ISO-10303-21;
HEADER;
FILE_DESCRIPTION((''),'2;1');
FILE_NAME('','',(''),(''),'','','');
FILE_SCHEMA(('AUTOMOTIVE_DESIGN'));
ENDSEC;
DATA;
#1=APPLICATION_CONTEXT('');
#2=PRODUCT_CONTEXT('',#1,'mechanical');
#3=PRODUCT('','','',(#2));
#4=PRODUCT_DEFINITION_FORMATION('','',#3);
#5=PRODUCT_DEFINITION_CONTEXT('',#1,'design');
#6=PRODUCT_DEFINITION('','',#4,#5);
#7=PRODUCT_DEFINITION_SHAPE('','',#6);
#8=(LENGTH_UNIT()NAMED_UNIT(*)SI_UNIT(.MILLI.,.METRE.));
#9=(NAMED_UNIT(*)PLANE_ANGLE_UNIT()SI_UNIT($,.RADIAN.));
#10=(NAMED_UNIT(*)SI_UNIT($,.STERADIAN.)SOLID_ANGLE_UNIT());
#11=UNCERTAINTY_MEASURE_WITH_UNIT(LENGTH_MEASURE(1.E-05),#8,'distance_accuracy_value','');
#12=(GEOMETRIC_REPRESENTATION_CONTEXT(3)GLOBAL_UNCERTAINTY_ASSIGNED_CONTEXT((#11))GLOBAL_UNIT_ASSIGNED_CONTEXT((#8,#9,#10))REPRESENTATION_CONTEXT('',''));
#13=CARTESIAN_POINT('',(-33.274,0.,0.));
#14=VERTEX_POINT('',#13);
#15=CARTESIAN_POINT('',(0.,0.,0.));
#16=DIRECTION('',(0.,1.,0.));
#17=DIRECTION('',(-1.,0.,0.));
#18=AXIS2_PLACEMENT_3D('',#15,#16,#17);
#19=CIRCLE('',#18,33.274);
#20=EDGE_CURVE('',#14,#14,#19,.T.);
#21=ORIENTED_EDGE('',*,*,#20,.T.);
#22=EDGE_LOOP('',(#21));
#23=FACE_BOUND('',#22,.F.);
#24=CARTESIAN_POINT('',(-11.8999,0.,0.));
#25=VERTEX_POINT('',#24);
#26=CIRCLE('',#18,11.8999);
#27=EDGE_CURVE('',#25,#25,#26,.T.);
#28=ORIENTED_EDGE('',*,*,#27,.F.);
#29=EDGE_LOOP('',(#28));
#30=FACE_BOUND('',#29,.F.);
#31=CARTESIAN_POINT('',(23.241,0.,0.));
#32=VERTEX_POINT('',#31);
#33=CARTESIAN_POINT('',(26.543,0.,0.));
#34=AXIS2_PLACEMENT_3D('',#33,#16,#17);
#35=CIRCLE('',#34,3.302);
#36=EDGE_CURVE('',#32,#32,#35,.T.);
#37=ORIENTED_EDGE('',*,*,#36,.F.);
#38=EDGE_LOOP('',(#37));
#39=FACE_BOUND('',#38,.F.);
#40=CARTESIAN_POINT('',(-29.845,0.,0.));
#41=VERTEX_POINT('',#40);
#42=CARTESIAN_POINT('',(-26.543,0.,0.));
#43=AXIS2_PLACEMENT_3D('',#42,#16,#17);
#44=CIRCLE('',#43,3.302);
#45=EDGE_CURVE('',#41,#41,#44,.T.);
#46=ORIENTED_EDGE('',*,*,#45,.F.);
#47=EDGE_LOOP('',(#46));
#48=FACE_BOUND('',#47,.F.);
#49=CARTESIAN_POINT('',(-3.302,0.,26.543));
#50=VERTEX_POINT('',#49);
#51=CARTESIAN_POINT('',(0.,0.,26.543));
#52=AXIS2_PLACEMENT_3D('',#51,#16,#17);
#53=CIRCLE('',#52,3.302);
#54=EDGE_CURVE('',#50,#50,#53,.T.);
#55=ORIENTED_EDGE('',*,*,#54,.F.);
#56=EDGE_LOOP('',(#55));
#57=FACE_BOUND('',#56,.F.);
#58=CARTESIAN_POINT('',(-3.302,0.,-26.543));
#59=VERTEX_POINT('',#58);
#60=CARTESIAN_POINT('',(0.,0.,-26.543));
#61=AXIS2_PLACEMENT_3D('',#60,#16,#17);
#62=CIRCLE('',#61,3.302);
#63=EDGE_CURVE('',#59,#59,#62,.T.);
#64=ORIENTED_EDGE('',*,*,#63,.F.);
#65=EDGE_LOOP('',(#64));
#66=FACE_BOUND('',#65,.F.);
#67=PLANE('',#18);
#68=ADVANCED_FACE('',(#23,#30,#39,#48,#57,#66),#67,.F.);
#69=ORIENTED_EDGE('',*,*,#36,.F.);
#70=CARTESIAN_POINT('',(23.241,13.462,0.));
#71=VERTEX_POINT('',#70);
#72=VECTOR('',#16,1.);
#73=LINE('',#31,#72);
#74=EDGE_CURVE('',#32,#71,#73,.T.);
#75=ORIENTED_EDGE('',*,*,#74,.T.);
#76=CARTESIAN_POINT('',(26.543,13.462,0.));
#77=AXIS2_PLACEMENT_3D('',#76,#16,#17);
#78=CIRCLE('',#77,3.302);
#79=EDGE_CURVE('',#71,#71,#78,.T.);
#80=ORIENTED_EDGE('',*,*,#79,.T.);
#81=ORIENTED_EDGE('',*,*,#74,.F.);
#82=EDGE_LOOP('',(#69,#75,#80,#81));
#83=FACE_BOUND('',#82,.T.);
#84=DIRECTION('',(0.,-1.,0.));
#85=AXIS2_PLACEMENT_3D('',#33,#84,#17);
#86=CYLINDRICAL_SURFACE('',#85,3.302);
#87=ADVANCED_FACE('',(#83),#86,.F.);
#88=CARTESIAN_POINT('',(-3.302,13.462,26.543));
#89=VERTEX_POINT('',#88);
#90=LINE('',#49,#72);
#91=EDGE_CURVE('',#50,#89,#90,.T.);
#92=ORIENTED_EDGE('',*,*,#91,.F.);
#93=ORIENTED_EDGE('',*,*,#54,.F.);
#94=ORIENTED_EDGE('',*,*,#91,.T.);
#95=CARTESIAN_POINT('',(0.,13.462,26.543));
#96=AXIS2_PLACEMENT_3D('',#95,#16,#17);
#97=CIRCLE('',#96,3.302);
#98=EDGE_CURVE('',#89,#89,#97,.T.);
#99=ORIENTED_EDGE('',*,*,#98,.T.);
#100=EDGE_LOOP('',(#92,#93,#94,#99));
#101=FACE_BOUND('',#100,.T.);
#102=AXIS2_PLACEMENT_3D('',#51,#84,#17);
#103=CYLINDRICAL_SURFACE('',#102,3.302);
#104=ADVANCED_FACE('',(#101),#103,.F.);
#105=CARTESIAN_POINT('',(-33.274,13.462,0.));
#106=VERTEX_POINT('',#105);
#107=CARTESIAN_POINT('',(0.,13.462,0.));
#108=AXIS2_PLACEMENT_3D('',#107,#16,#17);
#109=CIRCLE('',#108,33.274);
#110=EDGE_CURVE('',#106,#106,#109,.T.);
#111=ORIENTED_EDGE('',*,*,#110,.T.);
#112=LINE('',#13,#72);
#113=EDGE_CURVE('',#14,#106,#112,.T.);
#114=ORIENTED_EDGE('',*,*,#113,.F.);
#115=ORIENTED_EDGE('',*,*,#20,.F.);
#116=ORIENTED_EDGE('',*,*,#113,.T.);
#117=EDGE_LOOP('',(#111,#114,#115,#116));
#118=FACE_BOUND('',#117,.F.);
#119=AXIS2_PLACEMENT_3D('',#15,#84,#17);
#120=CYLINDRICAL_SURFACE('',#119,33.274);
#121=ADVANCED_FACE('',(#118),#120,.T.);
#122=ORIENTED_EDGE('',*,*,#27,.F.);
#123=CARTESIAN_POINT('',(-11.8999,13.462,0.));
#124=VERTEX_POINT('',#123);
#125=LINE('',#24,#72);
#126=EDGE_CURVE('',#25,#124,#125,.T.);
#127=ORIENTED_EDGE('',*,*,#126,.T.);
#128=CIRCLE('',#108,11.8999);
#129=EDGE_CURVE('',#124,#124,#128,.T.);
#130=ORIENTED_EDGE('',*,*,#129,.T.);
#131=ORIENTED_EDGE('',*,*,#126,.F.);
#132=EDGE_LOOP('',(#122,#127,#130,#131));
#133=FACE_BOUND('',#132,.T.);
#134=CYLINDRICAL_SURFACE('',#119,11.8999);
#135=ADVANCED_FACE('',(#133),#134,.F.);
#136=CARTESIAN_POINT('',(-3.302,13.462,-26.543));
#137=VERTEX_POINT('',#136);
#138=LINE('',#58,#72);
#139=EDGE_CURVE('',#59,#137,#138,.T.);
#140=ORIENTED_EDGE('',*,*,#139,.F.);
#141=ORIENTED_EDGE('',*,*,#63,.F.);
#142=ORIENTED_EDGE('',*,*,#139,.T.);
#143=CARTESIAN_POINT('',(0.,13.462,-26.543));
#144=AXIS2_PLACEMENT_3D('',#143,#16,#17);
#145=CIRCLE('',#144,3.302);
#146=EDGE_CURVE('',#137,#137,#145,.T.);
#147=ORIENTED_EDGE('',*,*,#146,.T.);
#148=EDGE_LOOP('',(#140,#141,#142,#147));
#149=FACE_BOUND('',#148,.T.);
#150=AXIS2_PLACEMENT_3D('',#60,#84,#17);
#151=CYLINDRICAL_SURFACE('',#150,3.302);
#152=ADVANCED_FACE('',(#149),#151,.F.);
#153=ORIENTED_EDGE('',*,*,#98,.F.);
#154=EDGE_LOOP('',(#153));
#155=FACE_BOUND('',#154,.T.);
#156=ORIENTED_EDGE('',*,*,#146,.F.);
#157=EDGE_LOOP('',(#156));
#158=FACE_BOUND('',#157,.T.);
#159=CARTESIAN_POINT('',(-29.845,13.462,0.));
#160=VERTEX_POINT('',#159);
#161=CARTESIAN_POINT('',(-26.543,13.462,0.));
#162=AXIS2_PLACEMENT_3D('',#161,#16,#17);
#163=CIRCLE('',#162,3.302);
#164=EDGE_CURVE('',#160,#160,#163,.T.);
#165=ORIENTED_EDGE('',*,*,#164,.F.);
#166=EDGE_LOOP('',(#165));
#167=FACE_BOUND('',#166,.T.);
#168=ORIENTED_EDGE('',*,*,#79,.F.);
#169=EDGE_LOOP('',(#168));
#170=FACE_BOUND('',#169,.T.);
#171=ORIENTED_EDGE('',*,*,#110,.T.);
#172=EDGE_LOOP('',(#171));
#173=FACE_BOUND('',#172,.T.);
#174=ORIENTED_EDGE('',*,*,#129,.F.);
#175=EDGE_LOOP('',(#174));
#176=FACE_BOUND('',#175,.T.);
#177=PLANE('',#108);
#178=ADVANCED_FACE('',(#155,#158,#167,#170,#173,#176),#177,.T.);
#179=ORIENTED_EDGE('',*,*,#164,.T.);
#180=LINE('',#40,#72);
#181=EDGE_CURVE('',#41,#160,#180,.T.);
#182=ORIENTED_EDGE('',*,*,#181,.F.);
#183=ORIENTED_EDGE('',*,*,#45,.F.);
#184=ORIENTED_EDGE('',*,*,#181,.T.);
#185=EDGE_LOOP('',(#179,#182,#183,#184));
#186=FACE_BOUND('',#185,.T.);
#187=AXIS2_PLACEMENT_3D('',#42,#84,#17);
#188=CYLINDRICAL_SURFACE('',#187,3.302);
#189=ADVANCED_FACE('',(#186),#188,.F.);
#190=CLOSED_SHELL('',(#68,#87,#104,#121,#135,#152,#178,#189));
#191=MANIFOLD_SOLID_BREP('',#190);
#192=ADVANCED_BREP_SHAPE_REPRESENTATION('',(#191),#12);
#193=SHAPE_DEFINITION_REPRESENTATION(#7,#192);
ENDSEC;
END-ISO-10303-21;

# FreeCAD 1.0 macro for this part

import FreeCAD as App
import Part
import Sketcher
Q = App.Units.Quantity

doc = App.newDocument("Part")
params = doc.addObject("Spreadsheet::Sheet", "Params")
for row, (alias, value) in enumerate([
    ("sketch1_diameter", "2.62 in"),
    ("sketch1_diameter2", "0.26 in"),
    ("sketch1_diameter3", "0.937 in"),
    ("pad1_length", "0.53 in"),
], start=1):
    params.set(f"A{row}", alias)
    params.set(f"B{row}", "=" + value)
    params.setAlias(f"B{row}", alias)

body = doc.addObject("PartDesign::Body", "Body")

sketch1 = doc.addObject("Sketcher::SketchObject", "Sketch")
body.addObject(sketch1)
sketch1.AttachmentSupport = (doc.XZ_Plane, [""])
sketch1.MapMode = "FlatFace"
sketch1.addGeometry([
    Part.Circle(App.Vector(0, 0, 0), App.Vector(0, 0, 1), 33.3),
    Part.Circle(App.Vector(0, -26.5, 0), App.Vector(0, 0, 1), 3.3),
    Part.Circle(App.Vector(26.5, 0, 0), App.Vector(0, 0, 1), 3.3),
    Part.Circle(App.Vector(0, 0, 0), App.Vector(0, 0, 1), 11.9),
    Part.Circle(App.Vector(-26.5, 0, 0), App.Vector(0, 0, 1), 3.3),
    Part.Circle(App.Vector(0, 26.5, 0), App.Vector(0, 0, 1), 3.3),
], False)
sketch1.addConstraint([
    Sketcher.Constraint("Coincident", 0, 3, -1, 1),
    Sketcher.Constraint("Coincident", 3, 3, -1, 1),
    Sketcher.Constraint("Equal", 1, 2),
    Sketcher.Constraint("Equal", 2, 4),
    Sketcher.Constraint("Equal", 4, 5),
    Sketcher.Constraint("Symmetric", 2, 3, 4, 3, -1, 1),
    Sketcher.Constraint("Symmetric", 1, 3, 5, 3, -1, 1),
    Sketcher.Constraint("PointOnObject", 1, 3, -2),
    Sketcher.Constraint("PointOnObject", 2, 3, -1),
    Sketcher.Constraint("Diameter", 0, Q("2.62 in")),
    Sketcher.Constraint("Diameter", 1, Q("0.26 in")),
    Sketcher.Constraint("Diameter", 3, Q("0.937 in")),
    Sketcher.Constraint("DistanceX", 4, 3, 2, 3, Q("2.09 in")),
    Sketcher.Constraint("DistanceY", 1, 3, 5, 3, Q("2.09 in")),
])
sketch1.setExpression("Constraints[9]", "Params.sketch1_diameter")
sketch1.setExpression("Constraints[10]", "Params.sketch1_diameter2")
sketch1.setExpression("Constraints[11]", "Params.sketch1_diameter3")
pad1 = doc.addObject("PartDesign::Pad", "Pad")
body.addObject(pad1)
pad1.Profile = sketch1
pad1.setExpression("Length", "Params.pad1_length")
pad1.Reversed = True

doc.recompute()
